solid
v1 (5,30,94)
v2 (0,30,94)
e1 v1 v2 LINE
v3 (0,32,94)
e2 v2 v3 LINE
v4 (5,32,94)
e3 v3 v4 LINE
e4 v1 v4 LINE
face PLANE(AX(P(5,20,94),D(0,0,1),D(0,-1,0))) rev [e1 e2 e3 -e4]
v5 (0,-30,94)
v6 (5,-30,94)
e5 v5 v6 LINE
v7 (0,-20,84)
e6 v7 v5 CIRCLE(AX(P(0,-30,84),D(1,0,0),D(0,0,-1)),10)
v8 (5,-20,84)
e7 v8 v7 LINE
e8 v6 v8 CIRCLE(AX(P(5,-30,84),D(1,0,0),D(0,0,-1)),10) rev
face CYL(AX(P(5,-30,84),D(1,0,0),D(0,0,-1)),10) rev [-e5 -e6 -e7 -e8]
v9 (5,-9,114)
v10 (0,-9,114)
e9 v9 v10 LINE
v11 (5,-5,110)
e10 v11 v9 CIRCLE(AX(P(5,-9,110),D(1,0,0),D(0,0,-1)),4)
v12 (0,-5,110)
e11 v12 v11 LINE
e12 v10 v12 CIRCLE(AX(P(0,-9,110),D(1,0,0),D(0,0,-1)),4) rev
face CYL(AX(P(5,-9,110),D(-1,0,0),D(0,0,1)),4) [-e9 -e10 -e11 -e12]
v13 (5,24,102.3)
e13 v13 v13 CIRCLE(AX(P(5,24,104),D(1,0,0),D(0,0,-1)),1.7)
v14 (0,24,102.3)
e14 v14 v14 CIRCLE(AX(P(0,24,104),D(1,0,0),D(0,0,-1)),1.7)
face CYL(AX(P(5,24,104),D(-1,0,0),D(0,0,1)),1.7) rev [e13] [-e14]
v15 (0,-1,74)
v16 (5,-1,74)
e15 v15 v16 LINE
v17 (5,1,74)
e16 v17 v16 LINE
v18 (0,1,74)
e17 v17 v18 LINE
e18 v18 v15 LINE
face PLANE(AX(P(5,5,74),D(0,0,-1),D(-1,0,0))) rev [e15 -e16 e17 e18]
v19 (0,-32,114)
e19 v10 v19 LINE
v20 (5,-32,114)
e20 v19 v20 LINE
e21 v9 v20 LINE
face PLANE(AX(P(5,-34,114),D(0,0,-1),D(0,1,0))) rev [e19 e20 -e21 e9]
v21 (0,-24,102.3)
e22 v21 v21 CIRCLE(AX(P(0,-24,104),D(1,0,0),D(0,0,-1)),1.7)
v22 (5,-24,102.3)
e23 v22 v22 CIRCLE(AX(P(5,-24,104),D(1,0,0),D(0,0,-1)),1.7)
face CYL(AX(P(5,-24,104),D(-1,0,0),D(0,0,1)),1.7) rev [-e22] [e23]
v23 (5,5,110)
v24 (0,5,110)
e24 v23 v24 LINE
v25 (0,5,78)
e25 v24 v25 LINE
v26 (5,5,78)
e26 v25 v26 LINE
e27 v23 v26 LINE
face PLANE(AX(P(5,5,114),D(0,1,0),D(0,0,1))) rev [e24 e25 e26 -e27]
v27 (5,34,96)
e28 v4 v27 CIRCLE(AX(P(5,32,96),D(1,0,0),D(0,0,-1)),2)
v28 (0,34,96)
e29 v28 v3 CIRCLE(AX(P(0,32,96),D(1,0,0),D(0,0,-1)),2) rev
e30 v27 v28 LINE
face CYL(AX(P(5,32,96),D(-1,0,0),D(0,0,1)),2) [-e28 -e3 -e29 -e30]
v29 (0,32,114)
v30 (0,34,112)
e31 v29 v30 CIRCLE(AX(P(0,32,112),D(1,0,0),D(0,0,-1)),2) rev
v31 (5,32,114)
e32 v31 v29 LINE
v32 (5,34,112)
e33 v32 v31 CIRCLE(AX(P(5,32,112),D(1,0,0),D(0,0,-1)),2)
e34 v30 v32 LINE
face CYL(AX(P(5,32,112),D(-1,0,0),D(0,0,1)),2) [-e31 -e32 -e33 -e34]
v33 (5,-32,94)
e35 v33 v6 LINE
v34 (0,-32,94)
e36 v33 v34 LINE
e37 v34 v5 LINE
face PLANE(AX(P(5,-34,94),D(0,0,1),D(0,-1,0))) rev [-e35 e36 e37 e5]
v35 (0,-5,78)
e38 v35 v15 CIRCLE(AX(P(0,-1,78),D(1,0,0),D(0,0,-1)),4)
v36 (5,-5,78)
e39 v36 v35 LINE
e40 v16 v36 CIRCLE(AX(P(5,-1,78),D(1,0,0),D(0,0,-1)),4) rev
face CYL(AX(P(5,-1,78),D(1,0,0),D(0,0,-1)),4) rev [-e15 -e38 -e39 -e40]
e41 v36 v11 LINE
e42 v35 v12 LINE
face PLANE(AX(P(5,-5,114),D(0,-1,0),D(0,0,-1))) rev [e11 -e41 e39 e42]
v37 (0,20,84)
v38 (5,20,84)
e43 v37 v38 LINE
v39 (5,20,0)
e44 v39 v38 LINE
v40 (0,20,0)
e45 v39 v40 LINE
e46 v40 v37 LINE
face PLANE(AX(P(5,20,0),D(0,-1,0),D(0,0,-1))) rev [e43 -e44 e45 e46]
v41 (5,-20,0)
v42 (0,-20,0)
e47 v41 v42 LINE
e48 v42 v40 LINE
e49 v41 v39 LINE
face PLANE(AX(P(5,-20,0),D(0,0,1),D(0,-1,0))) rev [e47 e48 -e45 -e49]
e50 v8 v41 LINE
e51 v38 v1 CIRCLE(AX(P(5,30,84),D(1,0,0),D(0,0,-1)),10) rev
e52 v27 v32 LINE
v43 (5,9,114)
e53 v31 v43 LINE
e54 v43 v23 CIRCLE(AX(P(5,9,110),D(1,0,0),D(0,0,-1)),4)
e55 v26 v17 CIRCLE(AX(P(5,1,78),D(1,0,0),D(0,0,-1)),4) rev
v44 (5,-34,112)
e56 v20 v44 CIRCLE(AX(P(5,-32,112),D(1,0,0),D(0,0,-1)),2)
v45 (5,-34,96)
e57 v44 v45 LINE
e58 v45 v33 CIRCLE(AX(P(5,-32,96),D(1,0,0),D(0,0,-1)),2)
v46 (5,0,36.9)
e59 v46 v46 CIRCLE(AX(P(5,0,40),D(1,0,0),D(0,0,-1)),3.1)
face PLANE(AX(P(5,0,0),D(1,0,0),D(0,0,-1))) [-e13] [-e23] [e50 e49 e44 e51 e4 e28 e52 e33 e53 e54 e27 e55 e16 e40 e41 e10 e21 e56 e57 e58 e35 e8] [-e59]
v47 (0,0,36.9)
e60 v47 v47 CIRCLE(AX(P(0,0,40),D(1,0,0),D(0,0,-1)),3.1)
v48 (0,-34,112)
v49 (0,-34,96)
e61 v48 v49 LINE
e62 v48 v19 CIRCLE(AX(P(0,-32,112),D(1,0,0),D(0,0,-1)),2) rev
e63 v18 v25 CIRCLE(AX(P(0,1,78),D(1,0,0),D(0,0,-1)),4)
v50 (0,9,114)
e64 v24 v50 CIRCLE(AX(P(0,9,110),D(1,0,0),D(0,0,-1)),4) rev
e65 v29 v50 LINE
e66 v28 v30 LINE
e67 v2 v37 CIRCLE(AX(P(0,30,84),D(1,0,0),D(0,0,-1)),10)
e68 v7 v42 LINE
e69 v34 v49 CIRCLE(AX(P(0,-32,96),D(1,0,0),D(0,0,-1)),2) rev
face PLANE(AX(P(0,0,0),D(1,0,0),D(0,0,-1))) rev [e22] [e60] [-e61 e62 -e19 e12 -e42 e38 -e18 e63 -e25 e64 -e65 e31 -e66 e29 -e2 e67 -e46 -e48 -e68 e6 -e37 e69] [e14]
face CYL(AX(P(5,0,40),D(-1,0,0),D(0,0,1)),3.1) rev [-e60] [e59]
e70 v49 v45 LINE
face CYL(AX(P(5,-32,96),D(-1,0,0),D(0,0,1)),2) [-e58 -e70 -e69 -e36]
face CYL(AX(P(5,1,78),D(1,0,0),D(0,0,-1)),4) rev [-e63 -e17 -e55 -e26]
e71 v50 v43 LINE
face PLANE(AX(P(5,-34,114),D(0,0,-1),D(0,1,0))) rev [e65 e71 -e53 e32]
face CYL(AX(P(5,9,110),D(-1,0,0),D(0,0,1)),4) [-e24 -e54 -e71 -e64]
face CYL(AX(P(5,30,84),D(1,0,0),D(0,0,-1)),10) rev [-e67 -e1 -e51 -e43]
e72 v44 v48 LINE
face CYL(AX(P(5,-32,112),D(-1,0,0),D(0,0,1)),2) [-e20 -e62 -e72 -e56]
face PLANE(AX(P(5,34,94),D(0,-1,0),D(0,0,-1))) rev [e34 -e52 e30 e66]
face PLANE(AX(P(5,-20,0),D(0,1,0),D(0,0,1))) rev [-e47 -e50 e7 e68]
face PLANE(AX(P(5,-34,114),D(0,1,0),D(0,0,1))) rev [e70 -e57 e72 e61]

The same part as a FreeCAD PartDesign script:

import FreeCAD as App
import Part
import Sketcher

V = App.Vector


def edges_at(feature, points):
    """Names of the edges that pass closest to the given points."""
    edges = feature.Shape.Edges
    near = lambda p: min(range(len(edges)), key=lambda i: edges[i].distToShape(Part.Vertex(*p))[0])
    return sorted({f"Edge{near(p) + 1}" for p in points})

doc = App.newDocument("Part")
body = doc.addObject("PartDesign::Body", "Body")

sketch1 = doc.addObject("Sketcher::SketchObject", "Sketch")
body.addObject(sketch1)
sketch1.AttachmentSupport = (doc.YZ_Plane, [""])
sketch1.MapMode = "FlatFace"
sketch1.addGeometry(Part.LineSegment(V(-20, 94, 0), V(-20, 0, 0)), False)
sketch1.addGeometry(Part.LineSegment(V(-20, 0, 0), V(20, 0, 0)), False)
sketch1.addGeometry(Part.LineSegment(V(20, 0, 0), V(20, 94, 0)), False)
sketch1.addGeometry(Part.LineSegment(V(20, 94, 0), V(34, 94, 0)), False)
sketch1.addGeometry(Part.LineSegment(V(34, 94, 0), V(34, 114, 0)), False)
sketch1.addGeometry(Part.LineSegment(V(34, 114, 0), V(-34, 114, 0)), False)
sketch1.addGeometry(Part.LineSegment(V(-34, 114, 0), V(-34, 94, 0)), False)
sketch1.addGeometry(Part.LineSegment(V(-34, 94, 0), V(-20, 94, 0)), False)
sketch1.addGeometry(Part.Circle(V(0, 40, 0), V(0, 0, 1), 3.1), False)
sketch1.addGeometry(Part.Circle(V(24, 104, 0), V(0, 0, 1), 1.7), False)
sketch1.addGeometry(Part.Circle(V(-24, 104, 0), V(0, 0, 1), 1.7), False)
sketch1.addConstraint(Sketcher.Constraint("Coincident", 0, 2, 1, 1))
sketch1.addConstraint(Sketcher.Constraint("Coincident", 1, 2, 2, 1))
sketch1.addConstraint(Sketcher.Constraint("Coincident", 2, 2, 3, 1))
sketch1.addConstraint(Sketcher.Constraint("Coincident", 3, 2, 4, 1))
sketch1.addConstraint(Sketcher.Constraint("Coincident", 4, 2, 5, 1))
sketch1.addConstraint(Sketcher.Constraint("Coincident", 5, 2, 6, 1))
sketch1.addConstraint(Sketcher.Constraint("Coincident", 6, 2, 7, 1))
sketch1.addConstraint(Sketcher.Constraint("Coincident", 7, 2, 0, 1))
sketch1.addConstraint(Sketcher.Constraint("Vertical", 0))
sketch1.addConstraint(Sketcher.Constraint("Horizontal", 1))
sketch1.addConstraint(Sketcher.Constraint("Vertical", 2))
sketch1.addConstraint(Sketcher.Constraint("Horizontal", 3))
sketch1.addConstraint(Sketcher.Constraint("Vertical", 4))
sketch1.addConstraint(Sketcher.Constraint("Horizontal", 5))
sketch1.addConstraint(Sketcher.Constraint("Vertical", 6))
sketch1.addConstraint(Sketcher.Constraint("Horizontal", 7))
sketch1.addConstraint(Sketcher.Constraint("Equal", 9, 10))
sketch1.addConstraint(Sketcher.Constraint("Symmetric", 0, 2, 1, 2, -1, 1))
sketch1.addConstraint(Sketcher.Constraint("Symmetric", 9, 3, 10, 3, -2))
sketch1.addConstraint(Sketcher.Constraint("Symmetric", 3, 2, 6, 2, -2))
sketch1.addConstraint(Sketcher.Constraint("PointOnObject", 8, 3, -2))
sketch1.addConstraint(Sketcher.Constraint("Diameter", 8, 6.2))
sketch1.addConstraint(Sketcher.Constraint("Diameter", 9, 3.4))
sketch1.addConstraint(Sketcher.Constraint("DistanceX", 1, 1, 1, 2, 40.0))
sketch1.addConstraint(Sketcher.Constraint("DistanceX", 3, 1, 3, 2, 14.0))
sketch1.addConstraint(Sketcher.Constraint("DistanceY", 0, 2, 0, 1, 94.0))
sketch1.addConstraint(Sketcher.Constraint("DistanceY", 4, 1, 4, 2, 20.0))
sketch1.addConstraint(Sketcher.Constraint("DistanceY", -1, 1, 8, 3, 40.0))
sketch1.addConstraint(Sketcher.Constraint("DistanceX", -1, 1, 9, 3, 24.0))
sketch1.addConstraint(Sketcher.Constraint("DistanceY", -1, 1, 9, 3, 104.0))
pad1 = doc.addObject("PartDesign::Pad", "Pad")
body.addObject(pad1)
pad1.Profile = sketch1
pad1.Length = 5
doc.recompute()

fillet = doc.addObject("PartDesign::Fillet", "Fillet")
body.addObject(fillet)
fillet.Base = (pad1, edges_at(pad1, [(2.5, -20, 94), (2.5, 20, 94)]))
fillet.Radius = 10
doc.recompute()

fillet2 = doc.addObject("PartDesign::Fillet", "Fillet001")
body.addObject(fillet2)
fillet2.Base = (fillet, edges_at(fillet, [
    (2.5, -34, 94),
    (2.5, -34, 114),
    (2.5, 34, 114),
    (2.5, 34, 94),
]))
fillet2.Radius = 2

sketch2 = doc.addObject("Sketcher::SketchObject", "Sketch001")
body.addObject(sketch2)
sketch2.AttachmentSupport = (doc.YZ_Plane, [""])
sketch2.MapMode = "FlatFace"
sketch2.addGeometry(Part.LineSegment(V(5, 114, 0), V(5, 74, 0)), False)
sketch2.addGeometry(Part.LineSegment(V(5, 74, 0), V(-5, 74, 0)), False)
sketch2.addGeometry(Part.LineSegment(V(-5, 74, 0), V(-5, 114, 0)), False)
sketch2.addGeometry(Part.LineSegment(V(-5, 114, 0), V(5, 114, 0)), False)
sketch2.addConstraint(Sketcher.Constraint("Coincident", 0, 2, 1, 1))
sketch2.addConstraint(Sketcher.Constraint("Coincident", 1, 2, 2, 1))
sketch2.addConstraint(Sketcher.Constraint("Coincident", 2, 2, 3, 1))
sketch2.addConstraint(Sketcher.Constraint("Coincident", 3, 2, 0, 1))
sketch2.addConstraint(Sketcher.Constraint("Vertical", 0))
sketch2.addConstraint(Sketcher.Constraint("Horizontal", 1))
sketch2.addConstraint(Sketcher.Constraint("Vertical", 2))
sketch2.addConstraint(Sketcher.Constraint("Horizontal", 3))
sketch2.addConstraint(Sketcher.Constraint("DistanceX", 1, 2, 1, 1, 10.0))
sketch2.addConstraint(Sketcher.Constraint("DistanceY", 0, 2, 0, 1, 40.0))
sketch2.addConstraint(Sketcher.Constraint("DistanceX", -1, 1, 0, 2, 5.0))
sketch2.addConstraint(Sketcher.Constraint("DistanceY", -1, 1, 0, 2, 74.0))
pocket1 = doc.addObject("PartDesign::Pocket", "Pocket")
body.addObject(pocket1)
pocket1.Profile = sketch2
pocket1.Length = 5
pocket1.Reversed = True
doc.recompute()

fillet3 = doc.addObject("PartDesign::Fillet", "Fillet002")
body.addObject(fillet3)
fillet3.Base = (pocket1, edges_at(pocket1, [
    (2.5, 5, 74),
    (2.5, 5, 114),
    (2.5, -5, 114),
    (2.5, -5, 74),
]))
fillet3.Radius = 4

doc.recompute()
